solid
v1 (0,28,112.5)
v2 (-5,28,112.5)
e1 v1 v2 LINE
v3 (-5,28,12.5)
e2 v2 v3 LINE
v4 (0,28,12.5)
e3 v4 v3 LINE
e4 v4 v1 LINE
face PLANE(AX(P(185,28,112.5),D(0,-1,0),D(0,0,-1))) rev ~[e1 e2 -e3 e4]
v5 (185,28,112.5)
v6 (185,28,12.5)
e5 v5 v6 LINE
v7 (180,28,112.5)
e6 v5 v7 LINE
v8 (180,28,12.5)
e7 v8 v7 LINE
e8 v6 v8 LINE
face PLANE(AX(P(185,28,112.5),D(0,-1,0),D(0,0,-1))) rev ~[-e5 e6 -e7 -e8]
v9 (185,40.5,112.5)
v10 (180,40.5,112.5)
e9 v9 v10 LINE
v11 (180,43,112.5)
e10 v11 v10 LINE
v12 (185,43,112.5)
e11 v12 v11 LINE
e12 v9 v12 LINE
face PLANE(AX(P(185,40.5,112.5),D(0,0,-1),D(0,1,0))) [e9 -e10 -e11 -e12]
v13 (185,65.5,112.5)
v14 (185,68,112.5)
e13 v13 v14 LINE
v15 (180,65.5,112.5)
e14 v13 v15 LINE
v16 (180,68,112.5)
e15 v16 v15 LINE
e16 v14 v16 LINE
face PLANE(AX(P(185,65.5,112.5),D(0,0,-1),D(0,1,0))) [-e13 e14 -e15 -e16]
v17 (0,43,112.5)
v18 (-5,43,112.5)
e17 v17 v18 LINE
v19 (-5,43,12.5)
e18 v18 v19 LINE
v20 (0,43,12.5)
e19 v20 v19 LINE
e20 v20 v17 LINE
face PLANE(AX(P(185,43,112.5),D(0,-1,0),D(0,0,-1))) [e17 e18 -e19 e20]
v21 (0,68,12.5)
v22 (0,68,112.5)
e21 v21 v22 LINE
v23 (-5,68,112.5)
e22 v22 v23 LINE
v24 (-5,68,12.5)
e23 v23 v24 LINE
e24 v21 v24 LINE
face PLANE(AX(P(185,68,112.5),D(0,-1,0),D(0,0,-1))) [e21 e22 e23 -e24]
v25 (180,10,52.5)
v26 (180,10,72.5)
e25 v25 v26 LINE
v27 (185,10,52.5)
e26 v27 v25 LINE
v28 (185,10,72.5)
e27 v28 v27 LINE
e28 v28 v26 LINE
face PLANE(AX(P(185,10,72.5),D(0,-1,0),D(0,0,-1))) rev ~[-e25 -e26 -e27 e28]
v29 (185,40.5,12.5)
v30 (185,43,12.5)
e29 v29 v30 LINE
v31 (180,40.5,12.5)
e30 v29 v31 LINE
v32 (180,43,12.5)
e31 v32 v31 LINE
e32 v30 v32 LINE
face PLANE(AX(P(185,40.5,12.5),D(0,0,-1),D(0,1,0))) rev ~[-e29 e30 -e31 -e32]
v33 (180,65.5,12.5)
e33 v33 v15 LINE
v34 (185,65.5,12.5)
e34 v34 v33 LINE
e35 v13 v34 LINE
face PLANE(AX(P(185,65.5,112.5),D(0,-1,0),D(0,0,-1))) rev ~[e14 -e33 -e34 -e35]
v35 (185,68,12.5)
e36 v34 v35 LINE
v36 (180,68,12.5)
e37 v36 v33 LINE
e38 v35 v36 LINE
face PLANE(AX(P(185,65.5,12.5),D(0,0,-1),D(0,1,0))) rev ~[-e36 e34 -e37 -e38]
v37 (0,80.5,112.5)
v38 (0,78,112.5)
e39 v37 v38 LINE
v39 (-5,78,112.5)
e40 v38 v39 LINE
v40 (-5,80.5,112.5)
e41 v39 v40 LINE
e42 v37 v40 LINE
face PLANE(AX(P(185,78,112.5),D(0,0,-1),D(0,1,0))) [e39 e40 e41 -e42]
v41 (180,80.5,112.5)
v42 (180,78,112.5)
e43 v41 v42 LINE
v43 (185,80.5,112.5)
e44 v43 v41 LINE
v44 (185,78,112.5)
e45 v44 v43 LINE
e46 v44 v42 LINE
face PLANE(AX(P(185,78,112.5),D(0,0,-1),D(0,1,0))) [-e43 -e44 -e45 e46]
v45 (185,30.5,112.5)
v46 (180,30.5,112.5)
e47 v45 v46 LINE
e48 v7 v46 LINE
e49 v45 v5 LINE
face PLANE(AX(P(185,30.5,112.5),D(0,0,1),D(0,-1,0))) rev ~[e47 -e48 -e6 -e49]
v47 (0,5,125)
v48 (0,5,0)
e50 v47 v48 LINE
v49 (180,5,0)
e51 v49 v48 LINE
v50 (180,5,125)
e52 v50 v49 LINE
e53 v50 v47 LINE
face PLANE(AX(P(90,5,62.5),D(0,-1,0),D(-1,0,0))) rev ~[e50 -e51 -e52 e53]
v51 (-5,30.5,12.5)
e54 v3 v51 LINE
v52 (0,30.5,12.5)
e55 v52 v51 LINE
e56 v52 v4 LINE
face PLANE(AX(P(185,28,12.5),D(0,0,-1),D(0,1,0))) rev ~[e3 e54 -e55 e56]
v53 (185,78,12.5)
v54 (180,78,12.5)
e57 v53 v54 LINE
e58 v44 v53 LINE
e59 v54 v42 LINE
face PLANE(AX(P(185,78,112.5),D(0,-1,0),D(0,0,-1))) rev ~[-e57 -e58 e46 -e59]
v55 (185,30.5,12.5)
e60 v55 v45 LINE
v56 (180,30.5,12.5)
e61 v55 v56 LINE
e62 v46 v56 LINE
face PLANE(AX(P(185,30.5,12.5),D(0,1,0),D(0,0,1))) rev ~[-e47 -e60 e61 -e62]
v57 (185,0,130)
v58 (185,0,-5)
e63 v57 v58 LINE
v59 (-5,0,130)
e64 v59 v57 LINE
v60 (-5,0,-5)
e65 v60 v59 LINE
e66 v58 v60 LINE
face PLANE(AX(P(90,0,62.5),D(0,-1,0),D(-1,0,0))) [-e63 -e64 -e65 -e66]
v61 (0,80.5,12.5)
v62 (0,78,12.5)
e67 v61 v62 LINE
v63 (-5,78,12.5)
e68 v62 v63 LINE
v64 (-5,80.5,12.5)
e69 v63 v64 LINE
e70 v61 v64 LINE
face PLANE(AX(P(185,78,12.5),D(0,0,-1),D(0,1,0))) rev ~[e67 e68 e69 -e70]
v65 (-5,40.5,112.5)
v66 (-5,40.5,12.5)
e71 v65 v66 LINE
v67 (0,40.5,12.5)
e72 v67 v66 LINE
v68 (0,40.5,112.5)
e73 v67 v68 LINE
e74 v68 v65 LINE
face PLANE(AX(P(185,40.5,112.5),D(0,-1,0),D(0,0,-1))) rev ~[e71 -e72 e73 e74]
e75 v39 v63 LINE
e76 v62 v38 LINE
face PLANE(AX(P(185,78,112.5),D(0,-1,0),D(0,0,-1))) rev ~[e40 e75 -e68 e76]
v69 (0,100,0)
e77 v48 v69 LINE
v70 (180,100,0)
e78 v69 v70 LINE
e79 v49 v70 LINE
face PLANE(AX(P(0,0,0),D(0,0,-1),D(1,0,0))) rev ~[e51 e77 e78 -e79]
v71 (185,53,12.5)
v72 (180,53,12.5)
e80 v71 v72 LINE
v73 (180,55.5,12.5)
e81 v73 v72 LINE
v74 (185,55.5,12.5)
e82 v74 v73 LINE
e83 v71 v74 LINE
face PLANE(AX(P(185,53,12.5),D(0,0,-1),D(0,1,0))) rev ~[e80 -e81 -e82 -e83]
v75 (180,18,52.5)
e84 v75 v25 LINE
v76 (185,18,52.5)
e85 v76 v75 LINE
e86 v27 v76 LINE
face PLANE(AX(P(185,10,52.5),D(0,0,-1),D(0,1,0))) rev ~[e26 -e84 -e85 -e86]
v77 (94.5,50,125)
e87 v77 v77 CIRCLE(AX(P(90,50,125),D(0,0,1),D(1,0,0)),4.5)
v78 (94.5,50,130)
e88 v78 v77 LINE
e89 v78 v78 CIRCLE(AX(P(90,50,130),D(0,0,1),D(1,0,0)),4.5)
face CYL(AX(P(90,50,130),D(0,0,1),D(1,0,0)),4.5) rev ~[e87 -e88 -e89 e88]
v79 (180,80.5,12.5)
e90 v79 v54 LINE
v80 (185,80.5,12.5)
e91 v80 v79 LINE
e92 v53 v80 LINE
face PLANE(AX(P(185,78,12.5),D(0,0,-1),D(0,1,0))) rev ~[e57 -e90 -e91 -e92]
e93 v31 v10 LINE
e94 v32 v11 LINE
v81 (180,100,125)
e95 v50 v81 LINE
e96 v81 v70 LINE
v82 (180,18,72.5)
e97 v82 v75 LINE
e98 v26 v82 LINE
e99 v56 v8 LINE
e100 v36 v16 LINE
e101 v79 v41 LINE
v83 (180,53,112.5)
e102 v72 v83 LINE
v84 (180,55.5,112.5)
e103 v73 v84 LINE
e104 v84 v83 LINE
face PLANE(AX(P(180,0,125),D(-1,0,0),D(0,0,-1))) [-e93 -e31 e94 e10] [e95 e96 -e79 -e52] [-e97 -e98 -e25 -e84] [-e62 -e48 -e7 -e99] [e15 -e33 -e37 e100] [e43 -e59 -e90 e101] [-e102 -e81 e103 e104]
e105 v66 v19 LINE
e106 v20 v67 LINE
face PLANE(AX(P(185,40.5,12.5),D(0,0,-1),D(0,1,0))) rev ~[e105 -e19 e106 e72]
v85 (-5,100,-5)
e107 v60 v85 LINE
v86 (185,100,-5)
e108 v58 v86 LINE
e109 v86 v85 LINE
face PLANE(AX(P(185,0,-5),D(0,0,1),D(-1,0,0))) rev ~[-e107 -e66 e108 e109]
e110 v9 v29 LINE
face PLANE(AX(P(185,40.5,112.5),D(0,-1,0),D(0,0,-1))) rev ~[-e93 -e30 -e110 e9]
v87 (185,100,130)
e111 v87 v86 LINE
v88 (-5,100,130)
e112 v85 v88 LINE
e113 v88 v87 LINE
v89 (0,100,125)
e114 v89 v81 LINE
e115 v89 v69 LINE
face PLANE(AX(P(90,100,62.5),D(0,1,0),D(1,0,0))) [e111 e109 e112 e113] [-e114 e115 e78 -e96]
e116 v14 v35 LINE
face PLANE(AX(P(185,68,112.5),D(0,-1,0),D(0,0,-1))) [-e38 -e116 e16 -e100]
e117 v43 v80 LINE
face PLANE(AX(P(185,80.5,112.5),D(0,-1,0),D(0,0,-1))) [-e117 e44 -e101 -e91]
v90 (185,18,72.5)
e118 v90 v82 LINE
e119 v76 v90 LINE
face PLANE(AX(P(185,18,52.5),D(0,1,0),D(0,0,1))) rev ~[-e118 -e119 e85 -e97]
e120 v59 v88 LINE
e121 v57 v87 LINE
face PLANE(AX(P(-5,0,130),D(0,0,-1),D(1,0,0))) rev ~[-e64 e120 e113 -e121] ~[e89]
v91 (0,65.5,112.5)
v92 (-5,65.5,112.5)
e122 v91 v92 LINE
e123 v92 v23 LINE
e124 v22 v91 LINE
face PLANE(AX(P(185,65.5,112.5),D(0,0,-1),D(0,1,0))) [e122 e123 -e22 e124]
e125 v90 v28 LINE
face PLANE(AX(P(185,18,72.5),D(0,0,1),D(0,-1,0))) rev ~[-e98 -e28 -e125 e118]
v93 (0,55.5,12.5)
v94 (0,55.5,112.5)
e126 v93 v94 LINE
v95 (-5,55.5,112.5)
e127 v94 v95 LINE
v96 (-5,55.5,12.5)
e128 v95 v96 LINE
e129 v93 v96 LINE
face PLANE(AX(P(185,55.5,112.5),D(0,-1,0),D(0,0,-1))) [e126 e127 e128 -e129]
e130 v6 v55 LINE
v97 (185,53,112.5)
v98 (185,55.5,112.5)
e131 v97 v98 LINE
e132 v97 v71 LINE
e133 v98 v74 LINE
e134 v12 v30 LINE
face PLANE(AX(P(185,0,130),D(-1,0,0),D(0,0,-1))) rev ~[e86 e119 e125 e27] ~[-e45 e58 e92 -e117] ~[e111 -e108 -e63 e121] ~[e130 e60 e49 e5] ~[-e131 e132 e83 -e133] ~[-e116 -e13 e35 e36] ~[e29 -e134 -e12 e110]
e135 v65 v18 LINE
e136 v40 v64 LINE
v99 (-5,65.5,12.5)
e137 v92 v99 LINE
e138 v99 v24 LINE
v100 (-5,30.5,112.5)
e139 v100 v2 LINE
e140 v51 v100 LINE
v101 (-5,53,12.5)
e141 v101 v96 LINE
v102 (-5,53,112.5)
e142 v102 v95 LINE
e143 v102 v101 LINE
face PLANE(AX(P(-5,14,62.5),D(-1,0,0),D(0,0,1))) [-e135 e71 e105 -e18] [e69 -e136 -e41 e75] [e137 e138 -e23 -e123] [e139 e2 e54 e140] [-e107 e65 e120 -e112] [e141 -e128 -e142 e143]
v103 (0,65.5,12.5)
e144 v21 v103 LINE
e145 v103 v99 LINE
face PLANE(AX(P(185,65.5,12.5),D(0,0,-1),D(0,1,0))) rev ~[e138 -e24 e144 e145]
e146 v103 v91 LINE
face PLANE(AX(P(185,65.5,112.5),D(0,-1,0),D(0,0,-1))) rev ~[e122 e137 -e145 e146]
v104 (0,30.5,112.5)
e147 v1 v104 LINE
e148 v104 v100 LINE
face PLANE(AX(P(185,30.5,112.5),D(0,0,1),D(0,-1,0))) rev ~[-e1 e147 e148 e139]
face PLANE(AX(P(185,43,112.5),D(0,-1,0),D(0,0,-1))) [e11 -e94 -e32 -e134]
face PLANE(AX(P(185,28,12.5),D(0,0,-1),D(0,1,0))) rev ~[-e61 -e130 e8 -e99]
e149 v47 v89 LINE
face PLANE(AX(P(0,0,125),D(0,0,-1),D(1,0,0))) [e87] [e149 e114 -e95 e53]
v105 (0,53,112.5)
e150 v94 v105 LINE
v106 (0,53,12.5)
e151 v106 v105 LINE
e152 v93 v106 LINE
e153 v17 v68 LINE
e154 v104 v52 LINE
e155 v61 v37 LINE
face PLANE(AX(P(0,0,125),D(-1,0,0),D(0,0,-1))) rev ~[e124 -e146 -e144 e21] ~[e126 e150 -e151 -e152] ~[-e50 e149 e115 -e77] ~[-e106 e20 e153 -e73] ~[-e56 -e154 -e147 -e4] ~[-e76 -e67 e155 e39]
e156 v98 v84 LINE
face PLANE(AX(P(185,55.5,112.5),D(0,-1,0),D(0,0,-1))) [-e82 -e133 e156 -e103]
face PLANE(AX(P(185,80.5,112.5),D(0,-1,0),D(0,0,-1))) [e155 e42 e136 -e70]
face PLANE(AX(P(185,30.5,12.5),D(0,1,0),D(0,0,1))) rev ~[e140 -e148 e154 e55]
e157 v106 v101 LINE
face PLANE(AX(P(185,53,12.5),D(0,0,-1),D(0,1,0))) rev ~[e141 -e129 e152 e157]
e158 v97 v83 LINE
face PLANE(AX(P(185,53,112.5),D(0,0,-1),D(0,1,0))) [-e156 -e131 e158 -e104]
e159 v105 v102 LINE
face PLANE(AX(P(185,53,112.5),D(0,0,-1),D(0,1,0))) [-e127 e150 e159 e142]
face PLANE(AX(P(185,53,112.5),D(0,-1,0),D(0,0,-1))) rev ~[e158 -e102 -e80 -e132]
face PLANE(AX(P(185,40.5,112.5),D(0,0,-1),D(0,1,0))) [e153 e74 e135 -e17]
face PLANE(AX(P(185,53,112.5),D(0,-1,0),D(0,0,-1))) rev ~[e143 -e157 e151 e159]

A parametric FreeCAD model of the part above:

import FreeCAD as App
import Part
import Sketcher
Q = App.Units.Quantity

doc = App.newDocument("Part")
body = doc.addObject("PartDesign::Body", "Body")

sketch1 = body.newObject("Sketcher::SketchObject", "Sketch")
sketch1.AttachmentSupport = (doc.getObject("XZ_Plane"), [""])
sketch1.MapMode = "FlatFace"
sketch1.addGeometry(Part.LineSegment(App.Vector(185, -5, 0), App.Vector(-5, -5, 0)), False)
sketch1.addGeometry(Part.LineSegment(App.Vector(-5, -5, 0), App.Vector(-5, 130, 0)), False)
sketch1.addGeometry(Part.LineSegment(App.Vector(-5, 130, 0), App.Vector(185, 130, 0)), False)
sketch1.addGeometry(Part.LineSegment(App.Vector(185, 130, 0), App.Vector(185, -5, 0)), False)
sketch1.addGeometry(Part.LineSegment(App.Vector(180, 125, 0), App.Vector(0, 125, 0)), False)
sketch1.addGeometry(Part.LineSegment(App.Vector(0, 125, 0), App.Vector(0, 0, 0)), False)
sketch1.addGeometry(Part.LineSegment(App.Vector(0, 0, 0), App.Vector(180, 0, 0)), False)
sketch1.addGeometry(Part.LineSegment(App.Vector(180, 0, 0), App.Vector(180, 125, 0)), False)
sketch1.addConstraint(Sketcher.Constraint("Coincident", 0, 2, 1, 1))
sketch1.addConstraint(Sketcher.Constraint("Coincident", 1, 2, 2, 1))
sketch1.addConstraint(Sketcher.Constraint("Coincident", 2, 2, 3, 1))
sketch1.addConstraint(Sketcher.Constraint("Coincident", 3, 2, 0, 1))
sketch1.addConstraint(Sketcher.Constraint("Coincident", 4, 2, 5, 1))
sketch1.addConstraint(Sketcher.Constraint("Coincident", 5, 2, 6, 1))
sketch1.addConstraint(Sketcher.Constraint("Coincident", 6, 2, 7, 1))
sketch1.addConstraint(Sketcher.Constraint("Coincident", 7, 2, 4, 1))
sketch1.addConstraint(Sketcher.Constraint("Horizontal", 0))
sketch1.addConstraint(Sketcher.Constraint("Vertical", 1))
sketch1.addConstraint(Sketcher.Constraint("Horizontal", 2))
sketch1.addConstraint(Sketcher.Constraint("Vertical", 3))
sketch1.addConstraint(Sketcher.Constraint("Horizontal", 4))
sketch1.addConstraint(Sketcher.Constraint("Vertical", 5))
sketch1.addConstraint(Sketcher.Constraint("Horizontal", 6))
sketch1.addConstraint(Sketcher.Constraint("Vertical", 7))
sketch1.addConstraint(Sketcher.Constraint("Coincident", 5, 2, -1, 1))
sketch1.addConstraint(Sketcher.Constraint("DistanceX", 0, 2, 0, 1, Q("190 mm")))
sketch1.addConstraint(Sketcher.Constraint("DistanceX", 4, 2, 4, 1, Q("180 mm")))
sketch1.addConstraint(Sketcher.Constraint("DistanceY", 1, 1, 1, 2, Q("135 mm")))
sketch1.addConstraint(Sketcher.Constraint("DistanceY", 5, 2, 5, 1, Q("125 mm")))
sketch1.addConstraint(Sketcher.Constraint("DistanceX", 0, 2, -1, 1, Q("5 mm")))
sketch1.addConstraint(Sketcher.Constraint("DistanceY", 0, 2, -1, 1, Q("5 mm")))
pad1 = body.newObject("PartDesign::Pad", "Pad")
pad1.Profile = sketch1
pad1.Length = 100
pad1.Reversed = True

sketch2 = body.newObject("Sketcher::SketchObject", "Sketch001")
sketch2.AttachmentSupport = (doc.getObject("XZ_Plane"), [""])
sketch2.MapMode = "FlatFace"
sketch2.addGeometry(Part.LineSegment(App.Vector(180, 0, 0), App.Vector(180, 125, 0)), False)
sketch2.addGeometry(Part.LineSegment(App.Vector(180, 125, 0), App.Vector(0, 125, 0)), False)
sketch2.addGeometry(Part.LineSegment(App.Vector(0, 125, 0), App.Vector(0, 0, 0)), False)
sketch2.addGeometry(Part.LineSegment(App.Vector(0, 0, 0), App.Vector(180, 0, 0)), False)
sketch2.addConstraint(Sketcher.Constraint("Coincident", 0, 2, 1, 1))
sketch2.addConstraint(Sketcher.Constraint("Coincident", 1, 2, 2, 1))
sketch2.addConstraint(Sketcher.Constraint("Coincident", 2, 2, 3, 1))
sketch2.addConstraint(Sketcher.Constraint("Coincident", 3, 2, 0, 1))
sketch2.addConstraint(Sketcher.Constraint("Vertical", 0))
sketch2.addConstraint(Sketcher.Constraint("Horizontal", 1))
sketch2.addConstraint(Sketcher.Constraint("Vertical", 2))
sketch2.addConstraint(Sketcher.Constraint("Horizontal", 3))
sketch2.addConstraint(Sketcher.Constraint("Coincident", 2, 2, -1, 1))
sketch2.addConstraint(Sketcher.Constraint("DistanceX", 1, 2, 1, 1, Q("180 mm")))
sketch2.addConstraint(Sketcher.Constraint("DistanceY", 0, 1, 0, 2, Q("125 mm")))
pad2 = body.newObject("PartDesign::Pad", "Pad001")
pad2.Profile = sketch2
pad2.Length = 5
pad2.Reversed = True

sketch3 = body.newObject("Sketcher::SketchObject", "Sketch002")
sketch3.AttachmentSupport = (doc.getObject("YZ_Plane"), [""])
sketch3.MapMode = "FlatFace"
sketch3.AttachmentOffset = App.Placement(App.Vector(0, 0, 185), App.Rotation())
sketch3.addGeometry(Part.LineSegment(App.Vector(10, 52.5, 0), App.Vector(18, 52.5, 0)), False)
sketch3.addGeometry(Part.LineSegment(App.Vector(18, 52.5, 0), App.Vector(18, 72.5, 0)), False)
sketch3.addGeometry(Part.LineSegment(App.Vector(18, 72.5, 0), App.Vector(10, 72.5, 0)), False)
sketch3.addGeometry(Part.LineSegment(App.Vector(10, 72.5, 0), App.Vector(10, 52.5, 0)), False)
sketch3.addGeometry(Part.LineSegment(App.Vector(28, 12.5, 0), App.Vector(30.5, 12.5, 0)), False)
sketch3.addGeometry(Part.LineSegment(App.Vector(30.5, 12.5, 0), App.Vector(30.5, 112.5, 0)), False)
sketch3.addGeometry(Part.LineSegment(App.Vector(30.5, 112.5, 0), App.Vector(28, 112.5, 0)), False)
sketch3.addGeometry(Part.LineSegment(App.Vector(28, 112.5, 0), App.Vector(28, 12.5, 0)), False)
sketch3.addGeometry(Part.LineSegment(App.Vector(43, 112.5, 0), App.Vector(40.5, 112.5, 0)), False)
sketch3.addGeometry(Part.LineSegment(App.Vector(40.5, 112.5, 0), App.Vector(40.5, 12.5, 0)), False)
sketch3.addGeometry(Part.LineSegment(App.Vector(40.5, 12.5, 0), App.Vector(43, 12.5, 0)), False)
sketch3.addGeometry(Part.LineSegment(App.Vector(43, 12.5, 0), App.Vector(43, 112.5, 0)), False)
sketch3.addGeometry(Part.LineSegment(App.Vector(55.5, 112.5, 0), App.Vector(53, 112.5, 0)), False)
sketch3.addGeometry(Part.LineSegment(App.Vector(53, 112.5, 0), App.Vector(53, 12.5, 0)), False)
sketch3.addGeometry(Part.LineSegment(App.Vector(53, 12.5, 0), App.Vector(55.5, 12.5, 0)), False)
sketch3.addGeometry(Part.LineSegment(App.Vector(55.5, 12.5, 0), App.Vector(55.5, 112.5, 0)), False)
sketch3.addGeometry(Part.LineSegment(App.Vector(68, 112.5, 0), App.Vector(65.5, 112.5, 0)), False)
sketch3.addGeometry(Part.LineSegment(App.Vector(65.5, 112.5, 0), App.Vector(65.5, 12.5, 0)), False)
sketch3.addGeometry(Part.LineSegment(App.Vector(65.5, 12.5, 0), App.Vector(68, 12.5, 0)), False)
sketch3.addGeometry(Part.LineSegment(App.Vector(68, 12.5, 0), App.Vector(68, 112.5, 0)), False)
sketch3.addGeometry(Part.LineSegment(App.Vector(80.5, 112.5, 0), App.Vector(78, 112.5, 0)), False)
sketch3.addGeometry(Part.LineSegment(App.Vector(78, 112.5, 0), App.Vector(78, 12.5, 0)), False)
sketch3.addGeometry(Part.LineSegment(App.Vector(78, 12.5, 0), App.Vector(80.5, 12.5, 0)), False)
sketch3.addGeometry(Part.LineSegment(App.Vector(80.5, 12.5, 0), App.Vector(80.5, 112.5, 0)), False)
sketch3.addConstraint(Sketcher.Constraint("Coincident", 0, 2, 1, 1))
sketch3.addConstraint(Sketcher.Constraint("Coincident", 1, 2, 2, 1))
sketch3.addConstraint(Sketcher.Constraint("Coincident", 2, 2, 3, 1))
sketch3.addConstraint(Sketcher.Constraint("Coincident", 3, 2, 0, 1))
sketch3.addConstraint(Sketcher.Constraint("Coincident", 4, 2, 5, 1))
sketch3.addConstraint(Sketcher.Constraint("Coincident", 5, 2, 6, 1))
sketch3.addConstraint(Sketcher.Constraint("Coincident", 6, 2, 7, 1))
sketch3.addConstraint(Sketcher.Constraint("Coincident", 7, 2, 4, 1))
sketch3.addConstraint(Sketcher.Constraint("Coincident", 8, 2, 9, 1))
sketch3.addConstraint(Sketcher.Constraint("Coincident", 9, 2, 10, 1))
sketch3.addConstraint(Sketcher.Constraint("Coincident", 10, 2, 11, 1))
sketch3.addConstraint(Sketcher.Constraint("Coincident", 11, 2, 8, 1))
sketch3.addConstraint(Sketcher.Constraint("Coincident", 12, 2, 13, 1))
sketch3.addConstraint(Sketcher.Constraint("Coincident", 13, 2, 14, 1))
sketch3.addConstraint(Sketcher.Constraint("Coincident", 14, 2, 15, 1))
sketch3.addConstraint(Sketcher.Constraint("Coincident", 15, 2, 12, 1))
sketch3.addConstraint(Sketcher.Constraint("Coincident", 16, 2, 17, 1))
sketch3.addConstraint(Sketcher.Constraint("Coincident", 17, 2, 18, 1))
sketch3.addConstraint(Sketcher.Constraint("Coincident", 18, 2, 19, 1))
sketch3.addConstraint(Sketcher.Constraint("Coincident", 19, 2, 16, 1))
sketch3.addConstraint(Sketcher.Constraint("Coincident", 20, 2, 21, 1))
sketch3.addConstraint(Sketcher.Constraint("Coincident", 21, 2, 22, 1))
sketch3.addConstraint(Sketcher.Constraint("Coincident", 22, 2, 23, 1))
sketch3.addConstraint(Sketcher.Constraint("Coincident", 23, 2, 20, 1))
sketch3.addConstraint(Sketcher.Constraint("Horizontal", 0))
sketch3.addConstraint(Sketcher.Constraint("Vertical", 1))
sketch3.addConstraint(Sketcher.Constraint("Horizontal", 2))
sketch3.addConstraint(Sketcher.Constraint("Vertical", 3))
sketch3.addConstraint(Sketcher.Constraint("Horizontal", 4))
sketch3.addConstraint(Sketcher.Constraint("Vertical", 5))
sketch3.addConstraint(Sketcher.Constraint("Horizontal", 6))
sketch3.addConstraint(Sketcher.Constraint("Vertical", 7))
sketch3.addConstraint(Sketcher.Constraint("Horizontal", 8))
sketch3.addConstraint(Sketcher.Constraint("Vertical", 9))
sketch3.addConstraint(Sketcher.Constraint("Horizontal", 10))
sketch3.addConstraint(Sketcher.Constraint("Vertical", 11))
sketch3.addConstraint(Sketcher.Constraint("Horizontal", 12))
sketch3.addConstraint(Sketcher.Constraint("Vertical", 13))
sketch3.addConstraint(Sketcher.Constraint("Horizontal", 14))
sketch3.addConstraint(Sketcher.Constraint("Vertical", 15))
sketch3.addConstraint(Sketcher.Constraint("Horizontal", 16))
sketch3.addConstraint(Sketcher.Constraint("Vertical", 17))
sketch3.addConstraint(Sketcher.Constraint("Horizontal", 18))
sketch3.addConstraint(Sketcher.Constraint("Vertical", 19))
sketch3.addConstraint(Sketcher.Constraint("Horizontal", 20))
sketch3.addConstraint(Sketcher.Constraint("Vertical", 21))
sketch3.addConstraint(Sketcher.Constraint("Horizontal", 22))
sketch3.addConstraint(Sketcher.Constraint("Vertical", 23))
sketch3.addConstraint(Sketcher.Constraint("Horizontal", 6, 2, 8, 2))
sketch3.addConstraint(Sketcher.Constraint("Horizontal", 7, 2, 9, 2))
sketch3.addConstraint(Sketcher.Constraint("Horizontal", 11, 2, 12, 2))
sketch3.addConstraint(Sketcher.Constraint("Horizontal", 10, 2, 13, 2))
sketch3.addConstraint(Sketcher.Constraint("Horizontal", 15, 2, 16, 2))
sketch3.addConstraint(Sketcher.Constraint("Horizontal", 14, 2, 17, 2))
sketch3.addConstraint(Sketcher.Constraint("Horizontal", 19, 2, 20, 2))
sketch3.addConstraint(Sketcher.Constraint("Horizontal", 18, 2, 21, 2))
sketch3.addConstraint(Sketcher.Constraint("Equal", 6, 8))
sketch3.addConstraint(Sketcher.Constraint("Equal", 10, 12))
sketch3.addConstraint(Sketcher.Constraint("Equal", 14, 16))
sketch3.addConstraint(Sketcher.Constraint("Equal", 18, 20))
sketch3.addConstraint(Sketcher.Constraint("DistanceX", 0, 1, 0, 2, Q("8 mm")))
sketch3.addConstraint(Sketcher.Constraint("DistanceY", 1, 1, 1, 2, Q("20 mm")))
sketch3.addConstraint(Sketcher.Constraint("DistanceY", 5, 1, 5, 2, Q("100 mm")))
sketch3.addConstraint(Sketcher.Constraint("DistanceX", 4, 1, 4, 2, Q("2.5 mm")))
sketch3.addConstraint(Sketcher.Constraint("DistanceX", -1, 1, 0, 2, Q("18 mm")))
sketch3.addConstraint(Sketcher.Constraint("DistanceX", -1, 1, 6, 2, Q("28 mm")))
sketch3.addConstraint(Sketcher.Constraint("DistanceX", -1, 1, 10, 2, Q("43 mm")))
sketch3.addConstraint(Sketcher.Constraint("DistanceX", -1, 1, 12, 2, Q("53 mm")))
sketch3.addConstraint(Sketcher.Constraint("DistanceX", -1, 1, 18, 2, Q("68 mm")))
sketch3.addConstraint(Sketcher.Constraint("DistanceX", -1, 1, 20, 2, Q("78 mm")))
sketch3.addConstraint(Sketcher.Constraint("DistanceY", 4, 2, 0, 2, Q("40 mm")))
sketch3.addConstraint(Sketcher.Constraint("DistanceY", -1, 1, 0, 2, Q("52.5 mm")))
pocket1 = body.newObject("PartDesign::Pocket", "Pocket")
pocket1.Profile = sketch3
pocket1.Length = 200

sketch4 = body.newObject("Sketcher::SketchObject", "Sketch003")
sketch4.AttachmentSupport = (doc.getObject("YZ_Plane"), [""])
sketch4.MapMode = "FlatFace"
sketch4.AttachmentOffset = App.Placement(App.Vector(0, 0, -5), App.Rotation())
sketch4.addGeometry(Part.LineSegment(App.Vector(18, 52.5, 0), App.Vector(10, 52.5, 0)), False)
sketch4.addGeometry(Part.LineSegment(App.Vector(10, 52.5, 0), App.Vector(10, 72.5, 0)), False)
sketch4.addGeometry(Part.LineSegment(App.Vector(10, 72.5, 0), App.Vector(18, 72.5, 0)), False)
sketch4.addGeometry(Part.LineSegment(App.Vector(18, 72.5, 0), App.Vector(18, 52.5, 0)), False)
sketch4.addConstraint(Sketcher.Constraint("Coincident", 0, 2, 1, 1))
sketch4.addConstraint(Sketcher.Constraint("Coincident", 1, 2, 2, 1))
sketch4.addConstraint(Sketcher.Constraint("Coincident", 2, 2, 3, 1))
sketch4.addConstraint(Sketcher.Constraint("Coincident", 3, 2, 0, 1))
sketch4.addConstraint(Sketcher.Constraint("Horizontal", 0))
sketch4.addConstraint(Sketcher.Constraint("Vertical", 1))
sketch4.addConstraint(Sketcher.Constraint("Horizontal", 2))
sketch4.addConstraint(Sketcher.Constraint("Vertical", 3))
sketch4.addConstraint(Sketcher.Constraint("DistanceX", 0, 2, 0, 1, Q("8 mm")))
sketch4.addConstraint(Sketcher.Constraint("DistanceY", 1, 1, 1, 2, Q("20 mm")))
sketch4.addConstraint(Sketcher.Constraint("DistanceX", -1, 1, 0, 2, Q("10 mm")))
sketch4.addConstraint(Sketcher.Constraint("DistanceY", -1, 1, 0, 2, Q("52.5 mm")))
pad3 = body.newObject("PartDesign::Pad", "Pad002")
pad3.Profile = sketch4
pad3.Length = 5

sketch5 = body.newObject("Sketcher::SketchObject", "Sketch004")
sketch5.AttachmentSupport = (doc.getObject("XY_Plane"), [""])
sketch5.MapMode = "FlatFace"
sketch5.AttachmentOffset = App.Placement(App.Vector(0, 0, 130), App.Rotation())
sketch5.addGeometry(Part.Circle(App.Vector(90, 50, 0), App.Vector(0, 0, 1), 4.5), False)
sketch5.addConstraint(Sketcher.Constraint("Diameter", 0, Q("9 mm")))
sketch5.addConstraint(Sketcher.Constraint("DistanceX", -1, 1, 0, 3, Q("90 mm")))
sketch5.addConstraint(Sketcher.Constraint("DistanceY", -1, 1, 0, 3, Q("50 mm")))
pocket2 = body.newObject("PartDesign::Pocket", "Pocket001")
pocket2.Profile = sketch5
pocket2.Length = 5

doc.recompute()
